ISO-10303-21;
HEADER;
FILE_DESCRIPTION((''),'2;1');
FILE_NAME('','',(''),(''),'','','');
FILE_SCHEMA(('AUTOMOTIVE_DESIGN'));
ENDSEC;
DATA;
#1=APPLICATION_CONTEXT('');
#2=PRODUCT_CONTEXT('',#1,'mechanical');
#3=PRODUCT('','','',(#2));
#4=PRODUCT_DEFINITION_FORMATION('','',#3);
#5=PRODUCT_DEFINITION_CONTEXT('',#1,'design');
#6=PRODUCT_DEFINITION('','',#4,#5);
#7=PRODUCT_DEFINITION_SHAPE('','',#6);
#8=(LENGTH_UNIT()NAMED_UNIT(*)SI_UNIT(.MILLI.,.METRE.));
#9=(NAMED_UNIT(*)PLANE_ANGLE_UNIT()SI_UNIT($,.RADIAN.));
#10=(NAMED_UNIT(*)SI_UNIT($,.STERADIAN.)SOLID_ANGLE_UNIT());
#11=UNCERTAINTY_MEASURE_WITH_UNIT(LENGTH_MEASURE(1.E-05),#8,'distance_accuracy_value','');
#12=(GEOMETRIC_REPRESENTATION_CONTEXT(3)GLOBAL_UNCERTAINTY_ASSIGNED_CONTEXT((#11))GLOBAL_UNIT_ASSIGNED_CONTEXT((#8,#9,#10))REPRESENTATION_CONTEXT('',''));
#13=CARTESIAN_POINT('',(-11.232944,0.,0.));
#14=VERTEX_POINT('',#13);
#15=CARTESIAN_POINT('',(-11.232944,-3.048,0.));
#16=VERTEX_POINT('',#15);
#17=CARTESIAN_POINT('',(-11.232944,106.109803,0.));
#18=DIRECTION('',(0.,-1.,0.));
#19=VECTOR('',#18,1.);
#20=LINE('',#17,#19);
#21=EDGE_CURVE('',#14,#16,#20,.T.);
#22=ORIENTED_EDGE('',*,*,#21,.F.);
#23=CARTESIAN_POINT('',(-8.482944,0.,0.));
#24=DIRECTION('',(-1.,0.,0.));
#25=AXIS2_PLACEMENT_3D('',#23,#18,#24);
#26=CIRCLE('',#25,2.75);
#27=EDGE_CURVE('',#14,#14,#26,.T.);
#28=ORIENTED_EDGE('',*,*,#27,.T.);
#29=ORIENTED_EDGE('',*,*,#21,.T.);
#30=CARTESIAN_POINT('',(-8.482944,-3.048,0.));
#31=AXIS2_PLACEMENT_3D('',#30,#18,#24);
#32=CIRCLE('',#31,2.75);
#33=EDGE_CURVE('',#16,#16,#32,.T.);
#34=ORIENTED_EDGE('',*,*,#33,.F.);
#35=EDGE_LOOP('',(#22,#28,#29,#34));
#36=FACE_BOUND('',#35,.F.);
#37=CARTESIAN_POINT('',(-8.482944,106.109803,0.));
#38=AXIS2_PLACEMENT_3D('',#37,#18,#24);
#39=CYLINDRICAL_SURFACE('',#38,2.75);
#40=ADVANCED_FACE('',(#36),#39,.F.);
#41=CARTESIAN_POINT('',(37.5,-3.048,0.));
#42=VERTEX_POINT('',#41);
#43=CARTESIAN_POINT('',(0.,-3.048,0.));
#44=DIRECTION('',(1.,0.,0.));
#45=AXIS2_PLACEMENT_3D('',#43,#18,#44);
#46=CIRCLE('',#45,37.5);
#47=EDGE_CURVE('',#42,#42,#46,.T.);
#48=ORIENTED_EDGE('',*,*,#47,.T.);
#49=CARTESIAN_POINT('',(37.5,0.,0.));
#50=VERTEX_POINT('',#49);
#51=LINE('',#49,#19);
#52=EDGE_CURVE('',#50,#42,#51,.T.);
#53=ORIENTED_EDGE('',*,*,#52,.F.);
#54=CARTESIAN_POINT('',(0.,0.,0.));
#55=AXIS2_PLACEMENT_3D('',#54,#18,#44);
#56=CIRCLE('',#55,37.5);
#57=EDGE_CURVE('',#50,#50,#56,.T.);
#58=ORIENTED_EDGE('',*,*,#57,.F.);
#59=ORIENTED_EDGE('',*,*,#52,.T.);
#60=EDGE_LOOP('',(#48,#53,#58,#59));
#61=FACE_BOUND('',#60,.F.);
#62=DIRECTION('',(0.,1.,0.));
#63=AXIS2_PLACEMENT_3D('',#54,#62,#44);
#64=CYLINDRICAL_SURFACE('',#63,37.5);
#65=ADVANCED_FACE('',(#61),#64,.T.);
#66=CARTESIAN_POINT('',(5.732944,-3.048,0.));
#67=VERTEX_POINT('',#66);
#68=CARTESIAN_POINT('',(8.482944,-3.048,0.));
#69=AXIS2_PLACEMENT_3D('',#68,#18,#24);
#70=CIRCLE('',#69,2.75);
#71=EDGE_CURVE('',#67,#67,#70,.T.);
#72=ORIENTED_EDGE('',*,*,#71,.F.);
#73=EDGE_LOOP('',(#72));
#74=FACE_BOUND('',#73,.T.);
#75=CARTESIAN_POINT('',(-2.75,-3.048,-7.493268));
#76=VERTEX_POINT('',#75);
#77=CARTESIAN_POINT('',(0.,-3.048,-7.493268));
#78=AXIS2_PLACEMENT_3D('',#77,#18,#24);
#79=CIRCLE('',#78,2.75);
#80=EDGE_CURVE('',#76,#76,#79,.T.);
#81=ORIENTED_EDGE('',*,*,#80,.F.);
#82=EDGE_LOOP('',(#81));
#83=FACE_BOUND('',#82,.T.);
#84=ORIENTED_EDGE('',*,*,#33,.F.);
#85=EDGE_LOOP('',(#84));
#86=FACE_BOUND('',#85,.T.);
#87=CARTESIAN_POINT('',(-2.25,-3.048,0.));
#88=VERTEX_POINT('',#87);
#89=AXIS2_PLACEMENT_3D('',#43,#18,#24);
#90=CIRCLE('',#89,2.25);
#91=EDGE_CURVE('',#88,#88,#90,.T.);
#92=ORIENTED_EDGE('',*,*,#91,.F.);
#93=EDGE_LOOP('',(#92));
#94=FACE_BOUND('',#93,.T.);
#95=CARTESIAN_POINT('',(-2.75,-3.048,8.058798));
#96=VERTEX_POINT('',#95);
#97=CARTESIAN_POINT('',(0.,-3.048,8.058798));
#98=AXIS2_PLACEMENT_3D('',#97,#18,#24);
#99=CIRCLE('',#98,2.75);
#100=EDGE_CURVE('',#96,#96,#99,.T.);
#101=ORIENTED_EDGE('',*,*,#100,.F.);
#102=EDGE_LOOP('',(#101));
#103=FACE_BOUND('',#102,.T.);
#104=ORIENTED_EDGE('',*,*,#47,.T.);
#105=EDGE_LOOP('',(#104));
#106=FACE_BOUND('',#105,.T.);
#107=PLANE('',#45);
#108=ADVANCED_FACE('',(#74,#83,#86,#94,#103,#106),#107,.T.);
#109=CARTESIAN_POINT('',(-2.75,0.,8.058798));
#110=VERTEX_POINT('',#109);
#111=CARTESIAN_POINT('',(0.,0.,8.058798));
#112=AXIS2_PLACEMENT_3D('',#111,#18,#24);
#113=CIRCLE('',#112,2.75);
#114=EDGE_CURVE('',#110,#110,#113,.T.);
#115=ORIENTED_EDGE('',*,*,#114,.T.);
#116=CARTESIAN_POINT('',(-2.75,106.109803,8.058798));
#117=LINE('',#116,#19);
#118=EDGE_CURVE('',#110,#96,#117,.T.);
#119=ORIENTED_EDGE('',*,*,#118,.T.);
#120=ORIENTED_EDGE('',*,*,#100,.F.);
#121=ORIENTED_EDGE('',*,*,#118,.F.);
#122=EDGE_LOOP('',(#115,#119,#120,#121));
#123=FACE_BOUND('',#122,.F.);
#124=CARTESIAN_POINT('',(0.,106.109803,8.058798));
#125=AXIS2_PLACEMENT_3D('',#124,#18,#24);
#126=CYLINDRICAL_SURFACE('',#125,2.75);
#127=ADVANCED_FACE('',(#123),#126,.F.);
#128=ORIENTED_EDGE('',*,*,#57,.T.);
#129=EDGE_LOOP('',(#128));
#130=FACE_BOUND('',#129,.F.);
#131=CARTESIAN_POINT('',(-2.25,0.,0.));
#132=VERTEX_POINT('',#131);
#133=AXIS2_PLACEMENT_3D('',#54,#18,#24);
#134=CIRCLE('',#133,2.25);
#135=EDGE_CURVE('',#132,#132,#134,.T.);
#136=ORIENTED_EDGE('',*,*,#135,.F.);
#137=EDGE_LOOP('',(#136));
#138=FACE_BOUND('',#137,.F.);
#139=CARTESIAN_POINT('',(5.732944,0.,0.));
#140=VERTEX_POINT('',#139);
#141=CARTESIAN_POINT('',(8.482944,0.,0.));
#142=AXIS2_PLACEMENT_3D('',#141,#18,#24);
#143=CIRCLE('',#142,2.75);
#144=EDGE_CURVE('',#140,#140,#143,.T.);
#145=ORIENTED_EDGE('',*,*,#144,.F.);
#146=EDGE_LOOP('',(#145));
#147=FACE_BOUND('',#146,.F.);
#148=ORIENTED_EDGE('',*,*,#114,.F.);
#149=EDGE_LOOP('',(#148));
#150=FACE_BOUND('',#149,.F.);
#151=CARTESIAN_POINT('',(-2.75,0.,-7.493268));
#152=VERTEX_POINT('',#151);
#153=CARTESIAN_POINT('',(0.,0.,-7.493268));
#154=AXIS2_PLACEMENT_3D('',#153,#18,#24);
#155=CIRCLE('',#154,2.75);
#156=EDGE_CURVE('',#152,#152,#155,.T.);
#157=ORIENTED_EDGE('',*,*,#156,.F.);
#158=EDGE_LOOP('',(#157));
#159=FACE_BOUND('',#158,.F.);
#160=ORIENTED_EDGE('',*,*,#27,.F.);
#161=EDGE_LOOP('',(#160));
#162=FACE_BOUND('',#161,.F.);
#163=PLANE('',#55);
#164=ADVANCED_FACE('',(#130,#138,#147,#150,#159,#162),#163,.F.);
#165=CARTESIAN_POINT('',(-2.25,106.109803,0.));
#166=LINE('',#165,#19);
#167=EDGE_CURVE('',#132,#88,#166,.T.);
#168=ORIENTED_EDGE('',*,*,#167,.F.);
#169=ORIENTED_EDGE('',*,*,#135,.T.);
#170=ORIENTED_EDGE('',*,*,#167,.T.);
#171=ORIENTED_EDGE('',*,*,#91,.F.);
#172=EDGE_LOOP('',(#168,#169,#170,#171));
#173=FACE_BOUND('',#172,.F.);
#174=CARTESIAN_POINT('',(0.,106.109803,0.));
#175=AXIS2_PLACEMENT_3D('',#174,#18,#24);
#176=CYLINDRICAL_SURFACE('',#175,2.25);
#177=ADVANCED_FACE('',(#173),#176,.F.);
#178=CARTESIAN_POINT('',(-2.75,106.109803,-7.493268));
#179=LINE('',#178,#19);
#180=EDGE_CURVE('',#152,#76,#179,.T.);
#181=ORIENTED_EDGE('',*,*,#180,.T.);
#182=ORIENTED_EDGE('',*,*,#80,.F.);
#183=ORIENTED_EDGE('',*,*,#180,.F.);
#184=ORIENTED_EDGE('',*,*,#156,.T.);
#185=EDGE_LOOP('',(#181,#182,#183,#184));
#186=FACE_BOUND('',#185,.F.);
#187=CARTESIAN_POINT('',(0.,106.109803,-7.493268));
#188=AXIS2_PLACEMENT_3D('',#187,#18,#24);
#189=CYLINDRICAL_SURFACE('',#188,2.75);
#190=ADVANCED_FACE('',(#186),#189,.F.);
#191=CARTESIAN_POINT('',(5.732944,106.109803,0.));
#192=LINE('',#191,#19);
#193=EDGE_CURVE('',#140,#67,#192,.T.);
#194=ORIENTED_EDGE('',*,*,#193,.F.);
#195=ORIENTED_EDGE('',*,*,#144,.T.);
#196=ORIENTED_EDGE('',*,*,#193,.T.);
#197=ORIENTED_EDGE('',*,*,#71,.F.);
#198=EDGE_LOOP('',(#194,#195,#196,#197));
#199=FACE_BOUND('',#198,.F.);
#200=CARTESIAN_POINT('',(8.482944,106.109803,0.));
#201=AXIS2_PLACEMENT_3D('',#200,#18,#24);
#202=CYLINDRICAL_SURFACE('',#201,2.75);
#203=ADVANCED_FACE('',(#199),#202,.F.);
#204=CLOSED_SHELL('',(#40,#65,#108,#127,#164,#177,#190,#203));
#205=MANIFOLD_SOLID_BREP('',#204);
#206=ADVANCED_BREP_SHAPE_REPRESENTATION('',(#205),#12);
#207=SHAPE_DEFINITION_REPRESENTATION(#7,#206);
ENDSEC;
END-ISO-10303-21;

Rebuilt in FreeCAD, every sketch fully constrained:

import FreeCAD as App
import Part
import Sketcher
from FreeCAD import Vector
Q = App.Units.Quantity

doc = App.newDocument("Part")
body = doc.addObject("PartDesign::Body", "Body")

sketch1 = doc.addObject("Sketcher::SketchObject", "Sketch")
body.addObject(sketch1)
sketch1.AttachmentSupport = (doc.XZ_Plane, [""])
sketch1.MapMode = "FlatFace"
sketch1.addGeometry(Part.Circle(Vector(0, 0, 0), Vector(0, 0, 1), 38), False)
sketch1.addConstraint([
    Sketcher.Constraint("Coincident", 0, 3, -1, 1),
    Sketcher.Constraint("Diameter", 0, Q("75 mm")),
])
pad1 = doc.addObject("PartDesign::Pad", "Pad")
body.addObject(pad1)
pad1.Profile = sketch1
pad1.Length = 3.048

sketch2 = doc.addObject("Sketcher::SketchObject", "Sketch001")
body.addObject(sketch2)
sketch2.AttachmentSupport = (doc.XZ_Plane, [""])
sketch2.MapMode = "FlatFace"
sketch2.addGeometry(Part.Circle(Vector(0, 0, 0), Vector(0, 0, 1), 2.2), False)
sketch2.addConstraint([
    Sketcher.Constraint("Coincident", 0, 3, -1, 1),
    Sketcher.Constraint("Diameter", 0, Q("4.5 mm")),
])
doc.recompute()
hole = doc.addObject("PartDesign::Hole", "Hole")
body.addObject(hole)
hole.Profile = sketch2
hole.ThreadType = "None"
hole.Diameter = 4.5
hole.DepthType = "ThroughAll"
hole.Reversed = True

sketch3 = doc.addObject("Sketcher::SketchObject", "Sketch002")
body.addObject(sketch3)
sketch3.AttachmentSupport = (doc.XZ_Plane, [""])
sketch3.MapMode = "FlatFace"
sketch3.addGeometry([
    Part.Circle(Vector(0, 8.1, 0), Vector(0, 0, 1), 2.8),
    Part.Circle(Vector(-8.5, 0, 0), Vector(0, 0, 1), 2.8),
    Part.Circle(Vector(0, -7.5, 0), Vector(0, 0, 1), 2.8),
    Part.Circle(Vector(8.5, 0, 0), Vector(0, 0, 1), 2.8),
], False)
sketch3.addConstraint([
    Sketcher.Constraint("Equal", 0, 1),
    Sketcher.Constraint("Equal", 1, 2),
    Sketcher.Constraint("Equal", 2, 3),
    Sketcher.Constraint("Symmetric", 1, 3, 3, 3, -1, 1),
    Sketcher.Constraint("PointOnObject", 0, 3, -2),
    Sketcher.Constraint("PointOnObject", 1, 3, -1),
    Sketcher.Constraint("PointOnObject", 2, 3, -2),
    Sketcher.Constraint("Diameter", 0, Q("5.5 mm")),
    Sketcher.Constraint("DistanceX", 1, 3, 3, 3, Q("16.965888 mm")),
    Sketcher.Constraint("DistanceY", -1, 1, 0, 3, Q("8.058798 mm")),
    Sketcher.Constraint("DistanceY", 2, 3, -1, 1, Q("7.493268 mm")),
])
doc.recompute()
hole2 = doc.addObject("PartDesign::Hole", "Hole001")
body.addObject(hole2)
hole2.Profile = sketch3
hole2.ThreadType = "None"
hole2.Diameter = 5.5
hole2.DepthType = "ThroughAll"
hole2.Reversed = True

doc.recompute()
